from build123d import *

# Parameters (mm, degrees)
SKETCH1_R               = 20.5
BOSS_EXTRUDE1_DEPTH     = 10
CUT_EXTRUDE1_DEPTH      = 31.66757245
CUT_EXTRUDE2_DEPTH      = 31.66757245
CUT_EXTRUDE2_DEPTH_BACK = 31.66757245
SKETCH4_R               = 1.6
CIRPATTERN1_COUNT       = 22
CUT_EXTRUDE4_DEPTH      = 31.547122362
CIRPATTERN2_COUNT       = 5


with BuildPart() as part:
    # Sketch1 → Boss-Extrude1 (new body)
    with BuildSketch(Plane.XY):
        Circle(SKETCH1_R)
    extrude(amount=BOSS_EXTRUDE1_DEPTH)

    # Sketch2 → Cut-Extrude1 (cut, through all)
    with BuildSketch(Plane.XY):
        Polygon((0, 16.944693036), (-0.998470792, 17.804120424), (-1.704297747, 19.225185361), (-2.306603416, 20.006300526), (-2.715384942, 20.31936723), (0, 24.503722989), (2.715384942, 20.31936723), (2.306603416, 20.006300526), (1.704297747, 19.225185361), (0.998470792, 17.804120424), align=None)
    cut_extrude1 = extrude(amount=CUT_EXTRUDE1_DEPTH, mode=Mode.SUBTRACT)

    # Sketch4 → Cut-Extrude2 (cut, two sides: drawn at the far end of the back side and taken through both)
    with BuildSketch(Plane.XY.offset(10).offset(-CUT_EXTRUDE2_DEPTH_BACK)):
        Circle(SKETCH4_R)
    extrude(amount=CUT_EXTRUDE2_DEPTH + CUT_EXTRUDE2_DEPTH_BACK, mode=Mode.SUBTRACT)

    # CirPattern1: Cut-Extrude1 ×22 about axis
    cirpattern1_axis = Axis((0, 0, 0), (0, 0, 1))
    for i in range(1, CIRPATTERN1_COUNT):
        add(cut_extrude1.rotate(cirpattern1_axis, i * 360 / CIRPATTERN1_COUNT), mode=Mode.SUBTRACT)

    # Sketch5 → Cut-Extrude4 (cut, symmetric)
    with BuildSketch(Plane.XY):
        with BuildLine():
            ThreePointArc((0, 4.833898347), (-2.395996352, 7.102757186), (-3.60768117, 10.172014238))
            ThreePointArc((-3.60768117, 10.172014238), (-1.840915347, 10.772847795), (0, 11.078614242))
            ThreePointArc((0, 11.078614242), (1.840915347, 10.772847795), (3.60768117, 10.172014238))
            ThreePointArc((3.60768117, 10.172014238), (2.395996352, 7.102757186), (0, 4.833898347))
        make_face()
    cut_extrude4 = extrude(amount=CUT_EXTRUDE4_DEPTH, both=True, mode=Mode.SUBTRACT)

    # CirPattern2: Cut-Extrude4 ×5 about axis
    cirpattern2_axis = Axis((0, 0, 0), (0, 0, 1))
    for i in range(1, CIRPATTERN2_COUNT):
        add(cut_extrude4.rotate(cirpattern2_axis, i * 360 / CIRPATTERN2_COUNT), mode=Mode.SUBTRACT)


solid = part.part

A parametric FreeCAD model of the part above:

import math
import FreeCAD as App
import Part
import Sketcher
from FreeCAD import Vector
Q = App.Units.Quantity


def add_polygon(sketch, points):
    """Adds a closed chain of lines whose ends are joined by coincident constraints."""
    first, n = sketch.GeometryCount, len(points)
    for a, b in zip(points, points[1:] + points[:1]):
        sketch.addGeometry(Part.LineSegment(App.Vector(*a, 0), App.Vector(*b, 0)), False)
    for i in range(n):
        sketch.addConstraint(Sketcher.Constraint("Coincident", first + i, 2, first + (i + 1) % n, 1))

doc = App.newDocument("Part")
params = doc.addObject("Spreadsheet::Sheet", "Params")
for row, (alias, value) in enumerate([
    ("sketch1_diameter", "41 mm"),
    ("pad1_length", "10 mm"),
    ("sketch3_diameter", "3.2 mm"),
    ("pocket3_length", "63.094245 mm"),
], start=1):
    params.set(f"A{row}", alias)
    params.set(f"B{row}", "=" + value)
    params.setAlias(f"B{row}", alias)

body = doc.addObject("PartDesign::Body", "Body")

# Sketch on XY plane
sketch1 = doc.addObject("Sketcher::SketchObject", "Sketch")
body.addObject(sketch1)
sketch1.AttachmentSupport = (doc.XY_Plane, [""])
sketch1.MapMode = "FlatFace"
sketch1.addGeometry(Part.Circle(Vector(0, 0, 0), Vector(0, 0, 1), 20.5), False)
sketch1.addConstraint([
    Sketcher.Constraint("Coincident", 0, 3, -1, 1),
    Sketcher.Constraint("Diameter", 0, Q("41 mm")),
])
sketch1.setExpression("Constraints[1]", "Params.sketch1_diameter")
pad1 = doc.addObject("PartDesign::Pad", "Pad")
body.addObject(pad1)
pad1.Profile = sketch1
pad1.setExpression("Length", "Params.pad1_length")

# Sketch on XY plane
sketch2 = doc.addObject("Sketcher::SketchObject", "Sketch001")
body.addObject(sketch2)
sketch2.AttachmentSupport = (doc.XY_Plane, [""])
sketch2.MapMode = "FlatFace"
add_polygon(sketch2, [(-0.998471, 17.80412), (0, 16.944693), (0.998471, 17.80412), (1.704298, 19.225185), (2.306603, 20.006301), (2.715385, 20.319367), (0, 24.503723), (-2.715385, 20.319367), (-2.306603, 20.006301), (-1.704298, 19.225185)])  # lines 0-9
sketch2.addConstraint([
    Sketcher.Constraint("Symmetric", 4, 2, 6, 2, -2),
    Sketcher.Constraint("Symmetric", 3, 2, 7, 2, -2),
    Sketcher.Constraint("Symmetric", 2, 2, 8, 2, -2),
    Sketcher.Constraint("Symmetric", 1, 2, 9, 2, -2),
    Sketcher.Constraint("PointOnObject", 0, 2, -2),
    Sketcher.Constraint("PointOnObject", 5, 2, -2),
    Sketcher.Constraint("Angle", 0, Q("-40.720015 deg")),
    Sketcher.Constraint("Distance", 2, Q("1.5867 mm")),
    Sketcher.Constraint("Distance", 5, Q("4.988201 mm")),
    Sketcher.Constraint("DistanceY", -1, 1, 3, 2, Q("20.006301 mm")),
    Sketcher.Constraint("DistanceX", 7, 2, 2, 2, Q("4.010901 mm")),
    Sketcher.Constraint("Distance", 4, Q("0.514891 mm")),
    Sketcher.Constraint("DistanceX", -1, 1, 1, 2, Q("0.998471 mm")),
    Sketcher.Constraint("DistanceY", -1, 1, 1, 2, Q("17.80412 mm")),
    Sketcher.Constraint("DistanceX", 3, 2, 4, 2, Q("0.408782 mm")),
    Sketcher.Constraint("DistanceY", 2, 2, 4, 2, Q("1.094182 mm")),
])
pocket1 = doc.addObject("PartDesign::Pocket", "Pocket")
body.addObject(pocket1)
pocket1.Profile = sketch2
pocket1.Type = "ThroughAll"
pocket1.Reversed = True

# Sketch on XY plane
sketch3 = doc.addObject("Sketcher::SketchObject", "Sketch002")
body.addObject(sketch3)
sketch3.AttachmentSupport = (doc.XY_Plane, [""])
sketch3.MapMode = "FlatFace"
sketch3.AttachmentOffset = App.Placement(Vector(0, 0, 10), App.Rotation())
sketch3.addGeometry(Part.Circle(Vector(0, 0, 0), Vector(0, 0, 1), 1.6), False)
sketch3.addConstraint([
    Sketcher.Constraint("Coincident", 0, 3, -1, 1),
    Sketcher.Constraint("Diameter", 0, Q("3.2 mm")),
])
sketch3.setExpression("Constraints[1]", "Params.sketch3_diameter")
pocket2 = doc.addObject("PartDesign::Pocket", "Pocket001")
body.addObject(pocket2)
pocket2.Profile = sketch3
pocket2.Type = "ThroughAll"
pocket2.Midplane = True
doc.recompute()

polarpattern = doc.addObject("PartDesign::PolarPattern", "PolarPattern")
body.addObject(polarpattern)
polarpattern.Originals = [pocket1]
polarpattern.Axis = (doc.Z_Axis, [""])
polarpattern.Angle = 360
polarpattern.Occurrences = 22
body.Tip = polarpattern

# Sketch on XY plane
sketch4 = doc.addObject("Sketcher::SketchObject", "Sketch003")
body.addObject(sketch4)
sketch4.AttachmentSupport = (doc.XY_Plane, [""])
sketch4.MapMode = "FlatFace"
sketch4.addGeometry([
    Part.ArcOfCircle(Part.Circle(Vector(3.915281, 11.368134, 0), Vector(0, 0, 1), 7.617458), math.radians(-170.965828), math.radians(-120.929828)),
    Part.ArcOfCircle(Part.Circle(Vector(-3.915281, 11.368134, 0), Vector(0, 0, 1), 7.617458), math.radians(-59.070172), math.radians(-9.034172)),
    Part.ArcOfCircle(Part.Circle(Vector(-0.948791, -0.328379, 0), Vector(0, 0, 1), 11.446384), math.radians(66.542363), math.radians(85.245294)),
    Part.ArcOfCircle(Part.Circle(Vector(0.948791, -0.328379, 0), Vector(0, 0, 1), 11.446384), math.radians(94.754706), math.radians(113.457637)),
], False)
sketch4.addConstraint([
    Sketcher.Constraint("Coincident", 0, 2, 1, 1),
    Sketcher.Constraint("Coincident", 1, 2, 2, 1),
    Sketcher.Constraint("Coincident", 2, 2, 3, 1),
    Sketcher.Constraint("Coincident", 3, 2, 0, 1),
    Sketcher.Constraint("Equal", 0, 1),
    Sketcher.Constraint("Equal", 2, 3),
    Sketcher.Constraint("Symmetric", 0, 3, 1, 3, -2),
    Sketcher.Constraint("Symmetric", 2, 3, 3, 3, -2),
    Sketcher.Constraint("Radius", 0, Q("7.617458 mm")),
    Sketcher.Constraint("Radius", 2, Q("11.446384 mm")),
    Sketcher.Constraint("DistanceY", -1, 1, 0, 2, Q("4.833898 mm")),
    Sketcher.Constraint("DistanceX", 1, 2, 0, 3, Q("0.3076 mm")),
    Sketcher.Constraint("DistanceY", 1, 2, 2, 2, Q("0.9066 mm")),
    Sketcher.Constraint("DistanceX", -1, 1, 0, 3, Q("3.915281 mm")),
])
pocket3 = doc.addObject("PartDesign::Pocket", "Pocket002")
body.addObject(pocket3)
pocket3.Profile = sketch4
pocket3.setExpression("Length", "Params.pocket3_length")
pocket3.Midplane = True
doc.recompute()

polarpattern2 = doc.addObject("PartDesign::PolarPattern", "PolarPattern001")
body.addObject(polarpattern2)
polarpattern2.Originals = [pocket3]
polarpattern2.Axis = (doc.Z_Axis, [""])
polarpattern2.Angle = 360
polarpattern2.Occurrences = 5
body.Tip = polarpattern2

doc.recompute()
